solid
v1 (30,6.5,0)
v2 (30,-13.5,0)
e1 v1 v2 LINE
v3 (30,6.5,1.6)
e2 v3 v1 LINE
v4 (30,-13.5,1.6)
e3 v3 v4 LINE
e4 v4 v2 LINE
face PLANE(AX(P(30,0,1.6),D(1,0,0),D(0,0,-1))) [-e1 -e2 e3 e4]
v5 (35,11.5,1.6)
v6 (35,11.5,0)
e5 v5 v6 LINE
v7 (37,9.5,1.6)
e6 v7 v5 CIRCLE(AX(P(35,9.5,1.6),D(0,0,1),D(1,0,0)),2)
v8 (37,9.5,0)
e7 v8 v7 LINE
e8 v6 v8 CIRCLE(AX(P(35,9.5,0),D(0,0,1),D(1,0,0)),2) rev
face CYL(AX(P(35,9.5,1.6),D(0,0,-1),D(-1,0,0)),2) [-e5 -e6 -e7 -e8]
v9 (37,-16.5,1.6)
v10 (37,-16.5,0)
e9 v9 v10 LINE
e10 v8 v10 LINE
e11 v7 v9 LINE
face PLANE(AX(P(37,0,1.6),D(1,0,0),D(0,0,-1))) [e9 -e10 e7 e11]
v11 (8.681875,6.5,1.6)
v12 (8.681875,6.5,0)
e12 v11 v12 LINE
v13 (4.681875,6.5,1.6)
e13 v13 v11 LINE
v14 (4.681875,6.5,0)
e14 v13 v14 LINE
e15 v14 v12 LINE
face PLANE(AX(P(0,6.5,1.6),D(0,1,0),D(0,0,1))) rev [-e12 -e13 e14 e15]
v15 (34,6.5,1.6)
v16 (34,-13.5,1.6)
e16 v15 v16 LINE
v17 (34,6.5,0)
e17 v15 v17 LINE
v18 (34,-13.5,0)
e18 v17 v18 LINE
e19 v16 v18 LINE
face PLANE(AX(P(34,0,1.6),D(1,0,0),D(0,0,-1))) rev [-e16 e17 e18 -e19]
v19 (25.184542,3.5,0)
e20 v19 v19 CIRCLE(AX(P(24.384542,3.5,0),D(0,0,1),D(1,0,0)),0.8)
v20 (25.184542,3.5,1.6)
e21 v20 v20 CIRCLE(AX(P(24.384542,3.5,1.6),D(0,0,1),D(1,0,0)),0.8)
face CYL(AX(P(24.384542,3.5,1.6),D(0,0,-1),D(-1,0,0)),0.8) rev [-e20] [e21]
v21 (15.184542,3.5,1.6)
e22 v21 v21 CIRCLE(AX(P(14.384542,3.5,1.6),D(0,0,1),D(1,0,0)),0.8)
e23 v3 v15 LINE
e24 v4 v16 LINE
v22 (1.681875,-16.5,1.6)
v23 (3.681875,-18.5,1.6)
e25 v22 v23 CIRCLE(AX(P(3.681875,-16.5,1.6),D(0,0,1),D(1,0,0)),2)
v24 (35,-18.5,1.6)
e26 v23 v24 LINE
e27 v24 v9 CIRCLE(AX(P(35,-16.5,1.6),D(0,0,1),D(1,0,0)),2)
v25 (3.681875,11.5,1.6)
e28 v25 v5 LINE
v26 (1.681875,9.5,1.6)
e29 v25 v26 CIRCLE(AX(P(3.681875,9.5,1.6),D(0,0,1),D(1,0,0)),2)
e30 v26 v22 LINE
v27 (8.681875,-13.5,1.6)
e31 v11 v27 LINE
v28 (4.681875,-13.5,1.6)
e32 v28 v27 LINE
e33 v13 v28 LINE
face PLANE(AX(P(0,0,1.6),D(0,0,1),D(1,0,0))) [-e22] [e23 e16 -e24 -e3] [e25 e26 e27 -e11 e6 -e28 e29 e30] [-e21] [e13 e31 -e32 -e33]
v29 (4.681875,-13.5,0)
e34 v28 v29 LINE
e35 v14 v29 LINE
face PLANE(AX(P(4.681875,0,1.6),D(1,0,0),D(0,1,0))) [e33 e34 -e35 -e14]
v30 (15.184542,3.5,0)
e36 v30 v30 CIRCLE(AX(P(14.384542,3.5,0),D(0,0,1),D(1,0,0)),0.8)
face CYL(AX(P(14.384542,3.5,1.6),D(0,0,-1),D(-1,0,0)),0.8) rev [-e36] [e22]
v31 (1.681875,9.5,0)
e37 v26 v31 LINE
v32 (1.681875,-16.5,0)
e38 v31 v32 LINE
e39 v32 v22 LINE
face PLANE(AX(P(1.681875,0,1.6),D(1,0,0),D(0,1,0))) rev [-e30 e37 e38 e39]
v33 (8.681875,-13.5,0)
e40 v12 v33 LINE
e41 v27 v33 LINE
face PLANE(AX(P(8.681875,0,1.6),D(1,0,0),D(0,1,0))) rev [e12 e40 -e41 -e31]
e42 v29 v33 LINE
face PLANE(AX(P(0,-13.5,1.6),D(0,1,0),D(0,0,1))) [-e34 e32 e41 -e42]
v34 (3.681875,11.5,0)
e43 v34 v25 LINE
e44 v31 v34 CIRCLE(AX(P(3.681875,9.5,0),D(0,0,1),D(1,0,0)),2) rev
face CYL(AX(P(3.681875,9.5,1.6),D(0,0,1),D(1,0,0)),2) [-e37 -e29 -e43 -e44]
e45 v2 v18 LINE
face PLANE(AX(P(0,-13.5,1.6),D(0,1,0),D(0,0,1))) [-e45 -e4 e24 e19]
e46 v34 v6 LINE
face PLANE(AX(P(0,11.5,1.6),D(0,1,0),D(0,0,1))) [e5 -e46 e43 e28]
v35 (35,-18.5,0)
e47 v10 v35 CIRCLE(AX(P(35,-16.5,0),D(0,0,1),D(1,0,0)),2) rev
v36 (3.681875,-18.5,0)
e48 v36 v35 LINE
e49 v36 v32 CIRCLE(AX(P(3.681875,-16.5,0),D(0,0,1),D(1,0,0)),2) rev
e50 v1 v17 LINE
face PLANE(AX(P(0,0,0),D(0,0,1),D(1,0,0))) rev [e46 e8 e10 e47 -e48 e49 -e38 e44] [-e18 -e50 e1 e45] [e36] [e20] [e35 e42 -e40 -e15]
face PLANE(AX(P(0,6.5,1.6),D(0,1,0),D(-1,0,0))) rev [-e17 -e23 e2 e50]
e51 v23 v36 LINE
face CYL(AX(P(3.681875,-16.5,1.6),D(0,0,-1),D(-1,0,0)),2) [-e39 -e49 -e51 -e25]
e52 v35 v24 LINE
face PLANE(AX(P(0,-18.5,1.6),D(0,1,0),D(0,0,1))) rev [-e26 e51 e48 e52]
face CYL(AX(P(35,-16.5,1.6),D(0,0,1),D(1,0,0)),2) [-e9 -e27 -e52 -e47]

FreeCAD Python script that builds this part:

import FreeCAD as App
import Part
import Sketcher
from FreeCAD import Vector
Q = App.Units.Quantity


def edges_at(feature, points):
    """Names of the edges that pass closest to the given points."""
    edges = feature.Shape.Edges
    near = lambda p: min(range(len(edges)), key=lambda i: edges[i].distToShape(Part.Vertex(*p))[0])
    return sorted({f"Edge{near(p) + 1}" for p in points})


def add_polygon(sketch, points):
    """Adds a closed chain of lines whose ends are joined by coincident constraints."""
    first, n = sketch.GeometryCount, len(points)
    for a, b in zip(points, points[1:] + points[:1]):
        sketch.addGeometry(Part.LineSegment(App.Vector(*a, 0), App.Vector(*b, 0)), False)
    for i in range(n):
        sketch.addConstraint(Sketcher.Constraint("Coincident", first + i, 2, first + (i + 1) % n, 1))

doc = App.newDocument("Part")
body = doc.addObject("PartDesign::Body", "Body")

sketch1 = body.newObject("Sketcher::SketchObject", "Sketch")
sketch1.AttachmentSupport = (doc.getObject("XY_Plane"), [""])
sketch1.MapMode = "FlatFace"
add_polygon(sketch1, [(1.7, 11.5), (1.7, -18.5), (37, -18.5), (37, 11.5)])
add_polygon(sketch1, [(8.7, -13.5), (4.7, -13.5), (4.7, 6.5), (8.7, 6.5)])
sketch1.addGeometry(Part.Circle(Vector(14.4, 3.5, 0), Vector(0, 0, 1), 0.8), False)
add_polygon(sketch1, [(34, -13.5), (30, -13.5), (30, 6.5), (34, 6.5)])
sketch1.addGeometry(Part.Circle(Vector(24.4, 3.5, 0), Vector(0, 0, 1), 0.8), False)
sketch1.addConstraint([
    Sketcher.Constraint("Vertical", 0),
    Sketcher.Constraint("Horizontal", 1),
    Sketcher.Constraint("Vertical", 2),
    Sketcher.Constraint("Horizontal", 3),
    Sketcher.Constraint("Horizontal", 4),
    Sketcher.Constraint("Vertical", 5),
    Sketcher.Constraint("Horizontal", 6),
    Sketcher.Constraint("Vertical", 7),
    Sketcher.Constraint("Horizontal", 9),
    Sketcher.Constraint("Vertical", 10),
    Sketcher.Constraint("Horizontal", 11),
    Sketcher.Constraint("Vertical", 12),
    Sketcher.Constraint("Equal", 8, 13),
    Sketcher.Constraint("Horizontal", 8, 3, 13, 3),
    Sketcher.Constraint("Horizontal", 7, 2, 9, 2),
    Sketcher.Constraint("Horizontal", 6, 2, 10, 2),
    Sketcher.Constraint("Equal", 6, 9),
    Sketcher.Constraint("Diameter", 8, Q("1.6 mm")),
    Sketcher.Constraint("DistanceX", 4, 2, 4, 1, Q("4 mm")),
    Sketcher.Constraint("DistanceY", 0, 2, 0, 1, Q("30 mm")),
    Sketcher.Constraint("DistanceY", 5, 1, 5, 2, Q("20 mm")),
    Sketcher.Constraint("DistanceX", -1, 1, 1, 2, Q("37 mm")),
    Sketcher.Constraint("DistanceX", -1, 1, 9, 2, Q("30 mm")),
    Sketcher.Constraint("DistanceX", 8, 3, 13, 3, Q("10 mm")),
    Sketcher.Constraint("DistanceY", 0, 2, 8, 3, Q("22 mm")),
    Sketcher.Constraint("DistanceX", 0, 2, 4, 2, Q("3 mm")),
    Sketcher.Constraint("DistanceY", 0, 2, 4, 2, Q("5 mm")),
    Sketcher.Constraint("DistanceY", -1, 1, 8, 3, Q("3.5 mm")),
    Sketcher.Constraint("DistanceX", 1, 1, 1, 2, Q("35.318125 mm")),
    Sketcher.Constraint("DistanceX", -1, 1, 8, 3, Q("14.384542 mm")),
])
pad1 = body.newObject("PartDesign::Pad", "Pad")
pad1.Profile = sketch1
pad1.Length = 1.6
doc.recompute()

fillet = body.newObject("PartDesign::Fillet", "Fillet")
fillet.Base = (pad1, edges_at(pad1, [
    (1.682, 11.5, 0.8),
    (37, 11.5, 0.8),
    (37, -18.5, 0.8),
    (1.682, -18.5, 0.8),
]))
fillet.Radius = 2

doc.recompute()
